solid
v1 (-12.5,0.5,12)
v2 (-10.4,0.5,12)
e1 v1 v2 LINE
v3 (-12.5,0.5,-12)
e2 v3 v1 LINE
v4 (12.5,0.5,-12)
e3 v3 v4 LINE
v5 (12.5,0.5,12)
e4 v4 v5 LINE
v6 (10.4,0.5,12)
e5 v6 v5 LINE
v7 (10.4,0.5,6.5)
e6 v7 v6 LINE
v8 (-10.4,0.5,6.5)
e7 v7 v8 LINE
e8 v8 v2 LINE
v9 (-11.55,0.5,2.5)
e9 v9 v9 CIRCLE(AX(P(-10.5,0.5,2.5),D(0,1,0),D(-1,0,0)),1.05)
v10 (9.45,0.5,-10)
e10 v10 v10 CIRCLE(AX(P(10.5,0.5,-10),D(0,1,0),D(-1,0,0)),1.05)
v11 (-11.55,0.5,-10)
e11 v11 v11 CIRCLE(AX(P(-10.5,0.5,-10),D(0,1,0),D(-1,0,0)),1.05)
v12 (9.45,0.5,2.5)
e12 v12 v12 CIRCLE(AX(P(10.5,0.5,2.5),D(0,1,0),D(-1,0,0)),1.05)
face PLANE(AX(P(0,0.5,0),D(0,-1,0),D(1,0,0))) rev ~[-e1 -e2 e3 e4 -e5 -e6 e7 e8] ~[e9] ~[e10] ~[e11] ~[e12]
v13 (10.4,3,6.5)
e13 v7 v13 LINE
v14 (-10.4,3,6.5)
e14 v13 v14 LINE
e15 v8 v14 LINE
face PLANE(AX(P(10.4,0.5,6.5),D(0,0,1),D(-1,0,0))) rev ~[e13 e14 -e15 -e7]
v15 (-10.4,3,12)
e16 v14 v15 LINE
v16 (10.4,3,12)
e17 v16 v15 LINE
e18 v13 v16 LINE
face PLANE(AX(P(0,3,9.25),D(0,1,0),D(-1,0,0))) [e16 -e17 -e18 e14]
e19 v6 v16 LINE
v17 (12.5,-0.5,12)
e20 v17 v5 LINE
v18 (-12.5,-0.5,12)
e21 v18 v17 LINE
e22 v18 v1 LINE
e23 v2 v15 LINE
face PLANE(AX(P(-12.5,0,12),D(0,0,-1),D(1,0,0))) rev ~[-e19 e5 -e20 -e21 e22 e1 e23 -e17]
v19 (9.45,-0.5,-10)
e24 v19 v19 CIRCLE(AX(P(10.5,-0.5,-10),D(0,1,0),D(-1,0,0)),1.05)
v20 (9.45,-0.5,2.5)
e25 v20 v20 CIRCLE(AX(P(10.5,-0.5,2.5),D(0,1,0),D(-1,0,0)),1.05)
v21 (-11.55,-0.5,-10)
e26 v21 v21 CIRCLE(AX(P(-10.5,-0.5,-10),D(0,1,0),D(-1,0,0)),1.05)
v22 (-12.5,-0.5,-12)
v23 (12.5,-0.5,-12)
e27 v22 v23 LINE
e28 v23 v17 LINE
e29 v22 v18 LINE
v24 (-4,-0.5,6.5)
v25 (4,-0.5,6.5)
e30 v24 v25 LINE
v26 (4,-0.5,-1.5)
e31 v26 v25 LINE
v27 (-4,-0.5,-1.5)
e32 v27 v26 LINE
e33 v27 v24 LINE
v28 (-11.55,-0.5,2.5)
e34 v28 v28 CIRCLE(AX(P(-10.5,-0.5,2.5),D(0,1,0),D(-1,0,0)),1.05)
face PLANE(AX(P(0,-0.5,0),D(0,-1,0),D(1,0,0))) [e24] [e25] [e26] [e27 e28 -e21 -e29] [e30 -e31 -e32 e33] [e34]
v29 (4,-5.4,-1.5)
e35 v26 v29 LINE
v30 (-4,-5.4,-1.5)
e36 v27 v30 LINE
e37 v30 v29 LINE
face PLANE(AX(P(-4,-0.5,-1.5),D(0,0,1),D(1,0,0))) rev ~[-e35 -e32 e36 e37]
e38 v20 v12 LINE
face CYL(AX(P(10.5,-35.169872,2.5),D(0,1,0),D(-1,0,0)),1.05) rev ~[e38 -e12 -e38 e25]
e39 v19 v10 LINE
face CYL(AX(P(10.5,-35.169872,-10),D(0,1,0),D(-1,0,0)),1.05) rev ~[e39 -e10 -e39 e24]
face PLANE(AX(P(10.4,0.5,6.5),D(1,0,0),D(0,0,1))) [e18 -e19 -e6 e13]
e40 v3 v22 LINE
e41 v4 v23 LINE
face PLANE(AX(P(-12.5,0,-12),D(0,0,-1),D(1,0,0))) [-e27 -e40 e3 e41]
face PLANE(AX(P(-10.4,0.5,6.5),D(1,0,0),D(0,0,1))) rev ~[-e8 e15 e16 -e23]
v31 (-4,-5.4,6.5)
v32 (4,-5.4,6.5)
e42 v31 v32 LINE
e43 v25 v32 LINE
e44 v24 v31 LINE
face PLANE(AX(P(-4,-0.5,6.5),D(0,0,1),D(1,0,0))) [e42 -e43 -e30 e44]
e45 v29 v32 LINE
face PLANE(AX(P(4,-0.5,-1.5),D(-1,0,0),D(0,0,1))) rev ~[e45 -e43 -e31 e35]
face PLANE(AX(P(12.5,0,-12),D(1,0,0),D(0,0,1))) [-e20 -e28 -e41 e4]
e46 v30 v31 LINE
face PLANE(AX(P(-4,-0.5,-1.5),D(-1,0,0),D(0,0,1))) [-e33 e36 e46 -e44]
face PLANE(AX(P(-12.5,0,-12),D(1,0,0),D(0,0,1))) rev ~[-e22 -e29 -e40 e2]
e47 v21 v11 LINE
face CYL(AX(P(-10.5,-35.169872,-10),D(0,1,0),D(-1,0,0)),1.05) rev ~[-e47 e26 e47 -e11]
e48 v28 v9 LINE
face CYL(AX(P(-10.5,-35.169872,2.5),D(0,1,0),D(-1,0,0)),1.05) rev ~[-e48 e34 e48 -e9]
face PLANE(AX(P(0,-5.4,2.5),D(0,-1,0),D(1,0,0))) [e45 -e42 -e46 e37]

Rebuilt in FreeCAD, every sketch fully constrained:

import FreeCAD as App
import Part
import Sketcher
from FreeCAD import Vector

doc = App.newDocument("Part")
body = doc.addObject("PartDesign::Body", "Body")

# Sketch on XZ plane
sketch1 = body.newObject("Sketcher::SketchObject", "Sketch")
sketch1.AttachmentSupport = (doc.getObject("XZ_Plane"), [""])
sketch1.MapMode = "FlatFace"
sketch1.addGeometry([
    Part.LineSegment(Vector(-12, 12, 0), Vector(-12, -12, 0)),
    Part.LineSegment(Vector(-12, -12, 0), Vector(12, -12, 0)),
    Part.LineSegment(Vector(12, -12, 0), Vector(12, 12, 0)),
    Part.LineSegment(Vector(12, 12, 0), Vector(-12, 12, 0)),
], False)
sketch1.addConstraint([
    Sketcher.Constraint("Coincident", 0, 2, 1, 1),
    Sketcher.Constraint("Coincident", 1, 2, 2, 1),
    Sketcher.Constraint("Coincident", 2, 2, 3, 1),
    Sketcher.Constraint("Coincident", 3, 2, 0, 1),
    Sketcher.Constraint("Vertical", 0),
    Sketcher.Constraint("Horizontal", 1),
    Sketcher.Constraint("Vertical", 2),
    Sketcher.Constraint("Horizontal", 3),
    Sketcher.Constraint("Symmetric", 0, 2, 2, 2, -1, 1),
    Sketcher.Constraint("DistanceX", 1, 1, 1, 2, 25.0),
    Sketcher.Constraint("DistanceY", 0, 2, 0, 1, 24.0),
])
pad1 = body.newObject("PartDesign::Pad", "Pad")
pad1.Profile = sketch1
pad1.Length = 1
pad1.Midplane = True

# Sketch on XZ plane
sketch2 = body.newObject("Sketcher::SketchObject", "Sketch001")
sketch2.AttachmentSupport = (doc.getObject("XZ_Plane"), [""])
sketch2.MapMode = "FlatFace"
sketch2.AttachmentOffset = App.Placement(Vector(0, 0, 0.5), App.Rotation())
sketch2.addGeometry([
    Part.Circle(Vector(-10.5, 2.5, 0), Vector(0, 0, 1), 1.1),
    Part.Circle(Vector(-10.5, -10, 0), Vector(0, 0, 1), 1.1),
    Part.Circle(Vector(10.5, 2.5, 0), Vector(0, 0, 1), 1.1),
    Part.Circle(Vector(10.5, -10, 0), Vector(0, 0, 1), 1.1),
], False)
sketch2.addConstraint([
    Sketcher.Constraint("Equal", 0, 1),
    Sketcher.Constraint("Equal", 1, 2),
    Sketcher.Constraint("Equal", 2, 3),
    Sketcher.Constraint("Symmetric", 0, 3, 2, 3, -2),
    Sketcher.Constraint("Symmetric", 1, 3, 3, 3, -2),
    Sketcher.Constraint("Vertical", 0, 3, 1, 3),
    Sketcher.Constraint("Diameter", 0, 2.1),
    Sketcher.Constraint("DistanceY", 1, 3, -1, 1, 10.0),
    Sketcher.Constraint("DistanceX", 0, 3, 2, 3, 21.0),
    Sketcher.Constraint("DistanceY", -1, 1, 0, 3, 2.5),
])
doc.recompute()
hole = body.newObject("PartDesign::Hole", "Hole")
hole.Profile = sketch2
hole.ThreadType = "None"
hole.Diameter = 2.1
hole.DepthType = "ThroughAll"

# Sketch on XZ plane
sketch3 = body.newObject("Sketcher::SketchObject", "Sketch002")
sketch3.AttachmentSupport = (doc.getObject("XZ_Plane"), [""])
sketch3.MapMode = "FlatFace"
sketch3.AttachmentOffset = App.Placement(Vector(0, 0, -0.5), App.Rotation())
sketch3.addGeometry([
    Part.LineSegment(Vector(10, 12, 0), Vector(10, 6, 0)),
    Part.LineSegment(Vector(10, 6, 0), Vector(-10, 6, 0)),
    Part.LineSegment(Vector(-10, 6, 0), Vector(-10, 12, 0)),
    Part.LineSegment(Vector(-10, 12, 0), Vector(10, 12, 0)),
], False)
sketch3.addConstraint([
    Sketcher.Constraint("Coincident", 0, 2, 1, 1),
    Sketcher.Constraint("Coincident", 1, 2, 2, 1),
    Sketcher.Constraint("Coincident", 2, 2, 3, 1),
    Sketcher.Constraint("Coincident", 3, 2, 0, 1),
    Sketcher.Constraint("Vertical", 0),
    Sketcher.Constraint("Horizontal", 1),
    Sketcher.Constraint("Vertical", 2),
    Sketcher.Constraint("Horizontal", 3),
    Sketcher.Constraint("DistanceX", 1, 2, 1, 1, 20.8),
    Sketcher.Constraint("DistanceY", 0, 2, 0, 1, 5.5),
    Sketcher.Constraint("DistanceY", -1, 1, 2, 2, 12.0),
    Sketcher.Constraint("DistanceX", -1, 1, 0, 2, 10.4),
])
pad2 = body.newObject("PartDesign::Pad", "Pad001")
pad2.Profile = sketch3
pad2.Length = 2.5
pad2.Reversed = True

# Sketch on XZ plane
sketch4 = body.newObject("Sketcher::SketchObject", "Sketch003")
sketch4.AttachmentSupport = (doc.getObject("XZ_Plane"), [""])
sketch4.MapMode = "FlatFace"
sketch4.AttachmentOffset = App.Placement(Vector(0, 0, 0.5), App.Rotation())
sketch4.addGeometry([
    Part.LineSegment(Vector(-4, 6, 0), Vector(-4, -2, 0)),
    Part.LineSegment(Vector(-4, -2, 0), Vector(4, -2, 0)),
    Part.LineSegment(Vector(4, -2, 0), Vector(4, 6, 0)),
    Part.LineSegment(Vector(4, 6, 0), Vector(-4, 6, 0)),
], False)
sketch4.addConstraint([
    Sketcher.Constraint("Coincident", 0, 2, 1, 1),
    Sketcher.Constraint("Coincident", 1, 2, 2, 1),
    Sketcher.Constraint("Coincident", 2, 2, 3, 1),
    Sketcher.Constraint("Coincident", 3, 2, 0, 1),
    Sketcher.Constraint("Vertical", 0),
    Sketcher.Constraint("Horizontal", 1),
    Sketcher.Constraint("Vertical", 2),
    Sketcher.Constraint("Horizontal", 3),
    Sketcher.Constraint("Equal", 3, 0),
    Sketcher.Constraint("DistanceX", 1, 1, 1, 2, 8.0),
    Sketcher.Constraint("DistanceX", 0, 2, -1, 1, 4.0),
    Sketcher.Constraint("DistanceY", 0, 2, -1, 1, 1.5),
])
pad3 = body.newObject("PartDesign::Pad", "Pad002")
pad3.Profile = sketch4
pad3.Length = 4.9

doc.recompute()
